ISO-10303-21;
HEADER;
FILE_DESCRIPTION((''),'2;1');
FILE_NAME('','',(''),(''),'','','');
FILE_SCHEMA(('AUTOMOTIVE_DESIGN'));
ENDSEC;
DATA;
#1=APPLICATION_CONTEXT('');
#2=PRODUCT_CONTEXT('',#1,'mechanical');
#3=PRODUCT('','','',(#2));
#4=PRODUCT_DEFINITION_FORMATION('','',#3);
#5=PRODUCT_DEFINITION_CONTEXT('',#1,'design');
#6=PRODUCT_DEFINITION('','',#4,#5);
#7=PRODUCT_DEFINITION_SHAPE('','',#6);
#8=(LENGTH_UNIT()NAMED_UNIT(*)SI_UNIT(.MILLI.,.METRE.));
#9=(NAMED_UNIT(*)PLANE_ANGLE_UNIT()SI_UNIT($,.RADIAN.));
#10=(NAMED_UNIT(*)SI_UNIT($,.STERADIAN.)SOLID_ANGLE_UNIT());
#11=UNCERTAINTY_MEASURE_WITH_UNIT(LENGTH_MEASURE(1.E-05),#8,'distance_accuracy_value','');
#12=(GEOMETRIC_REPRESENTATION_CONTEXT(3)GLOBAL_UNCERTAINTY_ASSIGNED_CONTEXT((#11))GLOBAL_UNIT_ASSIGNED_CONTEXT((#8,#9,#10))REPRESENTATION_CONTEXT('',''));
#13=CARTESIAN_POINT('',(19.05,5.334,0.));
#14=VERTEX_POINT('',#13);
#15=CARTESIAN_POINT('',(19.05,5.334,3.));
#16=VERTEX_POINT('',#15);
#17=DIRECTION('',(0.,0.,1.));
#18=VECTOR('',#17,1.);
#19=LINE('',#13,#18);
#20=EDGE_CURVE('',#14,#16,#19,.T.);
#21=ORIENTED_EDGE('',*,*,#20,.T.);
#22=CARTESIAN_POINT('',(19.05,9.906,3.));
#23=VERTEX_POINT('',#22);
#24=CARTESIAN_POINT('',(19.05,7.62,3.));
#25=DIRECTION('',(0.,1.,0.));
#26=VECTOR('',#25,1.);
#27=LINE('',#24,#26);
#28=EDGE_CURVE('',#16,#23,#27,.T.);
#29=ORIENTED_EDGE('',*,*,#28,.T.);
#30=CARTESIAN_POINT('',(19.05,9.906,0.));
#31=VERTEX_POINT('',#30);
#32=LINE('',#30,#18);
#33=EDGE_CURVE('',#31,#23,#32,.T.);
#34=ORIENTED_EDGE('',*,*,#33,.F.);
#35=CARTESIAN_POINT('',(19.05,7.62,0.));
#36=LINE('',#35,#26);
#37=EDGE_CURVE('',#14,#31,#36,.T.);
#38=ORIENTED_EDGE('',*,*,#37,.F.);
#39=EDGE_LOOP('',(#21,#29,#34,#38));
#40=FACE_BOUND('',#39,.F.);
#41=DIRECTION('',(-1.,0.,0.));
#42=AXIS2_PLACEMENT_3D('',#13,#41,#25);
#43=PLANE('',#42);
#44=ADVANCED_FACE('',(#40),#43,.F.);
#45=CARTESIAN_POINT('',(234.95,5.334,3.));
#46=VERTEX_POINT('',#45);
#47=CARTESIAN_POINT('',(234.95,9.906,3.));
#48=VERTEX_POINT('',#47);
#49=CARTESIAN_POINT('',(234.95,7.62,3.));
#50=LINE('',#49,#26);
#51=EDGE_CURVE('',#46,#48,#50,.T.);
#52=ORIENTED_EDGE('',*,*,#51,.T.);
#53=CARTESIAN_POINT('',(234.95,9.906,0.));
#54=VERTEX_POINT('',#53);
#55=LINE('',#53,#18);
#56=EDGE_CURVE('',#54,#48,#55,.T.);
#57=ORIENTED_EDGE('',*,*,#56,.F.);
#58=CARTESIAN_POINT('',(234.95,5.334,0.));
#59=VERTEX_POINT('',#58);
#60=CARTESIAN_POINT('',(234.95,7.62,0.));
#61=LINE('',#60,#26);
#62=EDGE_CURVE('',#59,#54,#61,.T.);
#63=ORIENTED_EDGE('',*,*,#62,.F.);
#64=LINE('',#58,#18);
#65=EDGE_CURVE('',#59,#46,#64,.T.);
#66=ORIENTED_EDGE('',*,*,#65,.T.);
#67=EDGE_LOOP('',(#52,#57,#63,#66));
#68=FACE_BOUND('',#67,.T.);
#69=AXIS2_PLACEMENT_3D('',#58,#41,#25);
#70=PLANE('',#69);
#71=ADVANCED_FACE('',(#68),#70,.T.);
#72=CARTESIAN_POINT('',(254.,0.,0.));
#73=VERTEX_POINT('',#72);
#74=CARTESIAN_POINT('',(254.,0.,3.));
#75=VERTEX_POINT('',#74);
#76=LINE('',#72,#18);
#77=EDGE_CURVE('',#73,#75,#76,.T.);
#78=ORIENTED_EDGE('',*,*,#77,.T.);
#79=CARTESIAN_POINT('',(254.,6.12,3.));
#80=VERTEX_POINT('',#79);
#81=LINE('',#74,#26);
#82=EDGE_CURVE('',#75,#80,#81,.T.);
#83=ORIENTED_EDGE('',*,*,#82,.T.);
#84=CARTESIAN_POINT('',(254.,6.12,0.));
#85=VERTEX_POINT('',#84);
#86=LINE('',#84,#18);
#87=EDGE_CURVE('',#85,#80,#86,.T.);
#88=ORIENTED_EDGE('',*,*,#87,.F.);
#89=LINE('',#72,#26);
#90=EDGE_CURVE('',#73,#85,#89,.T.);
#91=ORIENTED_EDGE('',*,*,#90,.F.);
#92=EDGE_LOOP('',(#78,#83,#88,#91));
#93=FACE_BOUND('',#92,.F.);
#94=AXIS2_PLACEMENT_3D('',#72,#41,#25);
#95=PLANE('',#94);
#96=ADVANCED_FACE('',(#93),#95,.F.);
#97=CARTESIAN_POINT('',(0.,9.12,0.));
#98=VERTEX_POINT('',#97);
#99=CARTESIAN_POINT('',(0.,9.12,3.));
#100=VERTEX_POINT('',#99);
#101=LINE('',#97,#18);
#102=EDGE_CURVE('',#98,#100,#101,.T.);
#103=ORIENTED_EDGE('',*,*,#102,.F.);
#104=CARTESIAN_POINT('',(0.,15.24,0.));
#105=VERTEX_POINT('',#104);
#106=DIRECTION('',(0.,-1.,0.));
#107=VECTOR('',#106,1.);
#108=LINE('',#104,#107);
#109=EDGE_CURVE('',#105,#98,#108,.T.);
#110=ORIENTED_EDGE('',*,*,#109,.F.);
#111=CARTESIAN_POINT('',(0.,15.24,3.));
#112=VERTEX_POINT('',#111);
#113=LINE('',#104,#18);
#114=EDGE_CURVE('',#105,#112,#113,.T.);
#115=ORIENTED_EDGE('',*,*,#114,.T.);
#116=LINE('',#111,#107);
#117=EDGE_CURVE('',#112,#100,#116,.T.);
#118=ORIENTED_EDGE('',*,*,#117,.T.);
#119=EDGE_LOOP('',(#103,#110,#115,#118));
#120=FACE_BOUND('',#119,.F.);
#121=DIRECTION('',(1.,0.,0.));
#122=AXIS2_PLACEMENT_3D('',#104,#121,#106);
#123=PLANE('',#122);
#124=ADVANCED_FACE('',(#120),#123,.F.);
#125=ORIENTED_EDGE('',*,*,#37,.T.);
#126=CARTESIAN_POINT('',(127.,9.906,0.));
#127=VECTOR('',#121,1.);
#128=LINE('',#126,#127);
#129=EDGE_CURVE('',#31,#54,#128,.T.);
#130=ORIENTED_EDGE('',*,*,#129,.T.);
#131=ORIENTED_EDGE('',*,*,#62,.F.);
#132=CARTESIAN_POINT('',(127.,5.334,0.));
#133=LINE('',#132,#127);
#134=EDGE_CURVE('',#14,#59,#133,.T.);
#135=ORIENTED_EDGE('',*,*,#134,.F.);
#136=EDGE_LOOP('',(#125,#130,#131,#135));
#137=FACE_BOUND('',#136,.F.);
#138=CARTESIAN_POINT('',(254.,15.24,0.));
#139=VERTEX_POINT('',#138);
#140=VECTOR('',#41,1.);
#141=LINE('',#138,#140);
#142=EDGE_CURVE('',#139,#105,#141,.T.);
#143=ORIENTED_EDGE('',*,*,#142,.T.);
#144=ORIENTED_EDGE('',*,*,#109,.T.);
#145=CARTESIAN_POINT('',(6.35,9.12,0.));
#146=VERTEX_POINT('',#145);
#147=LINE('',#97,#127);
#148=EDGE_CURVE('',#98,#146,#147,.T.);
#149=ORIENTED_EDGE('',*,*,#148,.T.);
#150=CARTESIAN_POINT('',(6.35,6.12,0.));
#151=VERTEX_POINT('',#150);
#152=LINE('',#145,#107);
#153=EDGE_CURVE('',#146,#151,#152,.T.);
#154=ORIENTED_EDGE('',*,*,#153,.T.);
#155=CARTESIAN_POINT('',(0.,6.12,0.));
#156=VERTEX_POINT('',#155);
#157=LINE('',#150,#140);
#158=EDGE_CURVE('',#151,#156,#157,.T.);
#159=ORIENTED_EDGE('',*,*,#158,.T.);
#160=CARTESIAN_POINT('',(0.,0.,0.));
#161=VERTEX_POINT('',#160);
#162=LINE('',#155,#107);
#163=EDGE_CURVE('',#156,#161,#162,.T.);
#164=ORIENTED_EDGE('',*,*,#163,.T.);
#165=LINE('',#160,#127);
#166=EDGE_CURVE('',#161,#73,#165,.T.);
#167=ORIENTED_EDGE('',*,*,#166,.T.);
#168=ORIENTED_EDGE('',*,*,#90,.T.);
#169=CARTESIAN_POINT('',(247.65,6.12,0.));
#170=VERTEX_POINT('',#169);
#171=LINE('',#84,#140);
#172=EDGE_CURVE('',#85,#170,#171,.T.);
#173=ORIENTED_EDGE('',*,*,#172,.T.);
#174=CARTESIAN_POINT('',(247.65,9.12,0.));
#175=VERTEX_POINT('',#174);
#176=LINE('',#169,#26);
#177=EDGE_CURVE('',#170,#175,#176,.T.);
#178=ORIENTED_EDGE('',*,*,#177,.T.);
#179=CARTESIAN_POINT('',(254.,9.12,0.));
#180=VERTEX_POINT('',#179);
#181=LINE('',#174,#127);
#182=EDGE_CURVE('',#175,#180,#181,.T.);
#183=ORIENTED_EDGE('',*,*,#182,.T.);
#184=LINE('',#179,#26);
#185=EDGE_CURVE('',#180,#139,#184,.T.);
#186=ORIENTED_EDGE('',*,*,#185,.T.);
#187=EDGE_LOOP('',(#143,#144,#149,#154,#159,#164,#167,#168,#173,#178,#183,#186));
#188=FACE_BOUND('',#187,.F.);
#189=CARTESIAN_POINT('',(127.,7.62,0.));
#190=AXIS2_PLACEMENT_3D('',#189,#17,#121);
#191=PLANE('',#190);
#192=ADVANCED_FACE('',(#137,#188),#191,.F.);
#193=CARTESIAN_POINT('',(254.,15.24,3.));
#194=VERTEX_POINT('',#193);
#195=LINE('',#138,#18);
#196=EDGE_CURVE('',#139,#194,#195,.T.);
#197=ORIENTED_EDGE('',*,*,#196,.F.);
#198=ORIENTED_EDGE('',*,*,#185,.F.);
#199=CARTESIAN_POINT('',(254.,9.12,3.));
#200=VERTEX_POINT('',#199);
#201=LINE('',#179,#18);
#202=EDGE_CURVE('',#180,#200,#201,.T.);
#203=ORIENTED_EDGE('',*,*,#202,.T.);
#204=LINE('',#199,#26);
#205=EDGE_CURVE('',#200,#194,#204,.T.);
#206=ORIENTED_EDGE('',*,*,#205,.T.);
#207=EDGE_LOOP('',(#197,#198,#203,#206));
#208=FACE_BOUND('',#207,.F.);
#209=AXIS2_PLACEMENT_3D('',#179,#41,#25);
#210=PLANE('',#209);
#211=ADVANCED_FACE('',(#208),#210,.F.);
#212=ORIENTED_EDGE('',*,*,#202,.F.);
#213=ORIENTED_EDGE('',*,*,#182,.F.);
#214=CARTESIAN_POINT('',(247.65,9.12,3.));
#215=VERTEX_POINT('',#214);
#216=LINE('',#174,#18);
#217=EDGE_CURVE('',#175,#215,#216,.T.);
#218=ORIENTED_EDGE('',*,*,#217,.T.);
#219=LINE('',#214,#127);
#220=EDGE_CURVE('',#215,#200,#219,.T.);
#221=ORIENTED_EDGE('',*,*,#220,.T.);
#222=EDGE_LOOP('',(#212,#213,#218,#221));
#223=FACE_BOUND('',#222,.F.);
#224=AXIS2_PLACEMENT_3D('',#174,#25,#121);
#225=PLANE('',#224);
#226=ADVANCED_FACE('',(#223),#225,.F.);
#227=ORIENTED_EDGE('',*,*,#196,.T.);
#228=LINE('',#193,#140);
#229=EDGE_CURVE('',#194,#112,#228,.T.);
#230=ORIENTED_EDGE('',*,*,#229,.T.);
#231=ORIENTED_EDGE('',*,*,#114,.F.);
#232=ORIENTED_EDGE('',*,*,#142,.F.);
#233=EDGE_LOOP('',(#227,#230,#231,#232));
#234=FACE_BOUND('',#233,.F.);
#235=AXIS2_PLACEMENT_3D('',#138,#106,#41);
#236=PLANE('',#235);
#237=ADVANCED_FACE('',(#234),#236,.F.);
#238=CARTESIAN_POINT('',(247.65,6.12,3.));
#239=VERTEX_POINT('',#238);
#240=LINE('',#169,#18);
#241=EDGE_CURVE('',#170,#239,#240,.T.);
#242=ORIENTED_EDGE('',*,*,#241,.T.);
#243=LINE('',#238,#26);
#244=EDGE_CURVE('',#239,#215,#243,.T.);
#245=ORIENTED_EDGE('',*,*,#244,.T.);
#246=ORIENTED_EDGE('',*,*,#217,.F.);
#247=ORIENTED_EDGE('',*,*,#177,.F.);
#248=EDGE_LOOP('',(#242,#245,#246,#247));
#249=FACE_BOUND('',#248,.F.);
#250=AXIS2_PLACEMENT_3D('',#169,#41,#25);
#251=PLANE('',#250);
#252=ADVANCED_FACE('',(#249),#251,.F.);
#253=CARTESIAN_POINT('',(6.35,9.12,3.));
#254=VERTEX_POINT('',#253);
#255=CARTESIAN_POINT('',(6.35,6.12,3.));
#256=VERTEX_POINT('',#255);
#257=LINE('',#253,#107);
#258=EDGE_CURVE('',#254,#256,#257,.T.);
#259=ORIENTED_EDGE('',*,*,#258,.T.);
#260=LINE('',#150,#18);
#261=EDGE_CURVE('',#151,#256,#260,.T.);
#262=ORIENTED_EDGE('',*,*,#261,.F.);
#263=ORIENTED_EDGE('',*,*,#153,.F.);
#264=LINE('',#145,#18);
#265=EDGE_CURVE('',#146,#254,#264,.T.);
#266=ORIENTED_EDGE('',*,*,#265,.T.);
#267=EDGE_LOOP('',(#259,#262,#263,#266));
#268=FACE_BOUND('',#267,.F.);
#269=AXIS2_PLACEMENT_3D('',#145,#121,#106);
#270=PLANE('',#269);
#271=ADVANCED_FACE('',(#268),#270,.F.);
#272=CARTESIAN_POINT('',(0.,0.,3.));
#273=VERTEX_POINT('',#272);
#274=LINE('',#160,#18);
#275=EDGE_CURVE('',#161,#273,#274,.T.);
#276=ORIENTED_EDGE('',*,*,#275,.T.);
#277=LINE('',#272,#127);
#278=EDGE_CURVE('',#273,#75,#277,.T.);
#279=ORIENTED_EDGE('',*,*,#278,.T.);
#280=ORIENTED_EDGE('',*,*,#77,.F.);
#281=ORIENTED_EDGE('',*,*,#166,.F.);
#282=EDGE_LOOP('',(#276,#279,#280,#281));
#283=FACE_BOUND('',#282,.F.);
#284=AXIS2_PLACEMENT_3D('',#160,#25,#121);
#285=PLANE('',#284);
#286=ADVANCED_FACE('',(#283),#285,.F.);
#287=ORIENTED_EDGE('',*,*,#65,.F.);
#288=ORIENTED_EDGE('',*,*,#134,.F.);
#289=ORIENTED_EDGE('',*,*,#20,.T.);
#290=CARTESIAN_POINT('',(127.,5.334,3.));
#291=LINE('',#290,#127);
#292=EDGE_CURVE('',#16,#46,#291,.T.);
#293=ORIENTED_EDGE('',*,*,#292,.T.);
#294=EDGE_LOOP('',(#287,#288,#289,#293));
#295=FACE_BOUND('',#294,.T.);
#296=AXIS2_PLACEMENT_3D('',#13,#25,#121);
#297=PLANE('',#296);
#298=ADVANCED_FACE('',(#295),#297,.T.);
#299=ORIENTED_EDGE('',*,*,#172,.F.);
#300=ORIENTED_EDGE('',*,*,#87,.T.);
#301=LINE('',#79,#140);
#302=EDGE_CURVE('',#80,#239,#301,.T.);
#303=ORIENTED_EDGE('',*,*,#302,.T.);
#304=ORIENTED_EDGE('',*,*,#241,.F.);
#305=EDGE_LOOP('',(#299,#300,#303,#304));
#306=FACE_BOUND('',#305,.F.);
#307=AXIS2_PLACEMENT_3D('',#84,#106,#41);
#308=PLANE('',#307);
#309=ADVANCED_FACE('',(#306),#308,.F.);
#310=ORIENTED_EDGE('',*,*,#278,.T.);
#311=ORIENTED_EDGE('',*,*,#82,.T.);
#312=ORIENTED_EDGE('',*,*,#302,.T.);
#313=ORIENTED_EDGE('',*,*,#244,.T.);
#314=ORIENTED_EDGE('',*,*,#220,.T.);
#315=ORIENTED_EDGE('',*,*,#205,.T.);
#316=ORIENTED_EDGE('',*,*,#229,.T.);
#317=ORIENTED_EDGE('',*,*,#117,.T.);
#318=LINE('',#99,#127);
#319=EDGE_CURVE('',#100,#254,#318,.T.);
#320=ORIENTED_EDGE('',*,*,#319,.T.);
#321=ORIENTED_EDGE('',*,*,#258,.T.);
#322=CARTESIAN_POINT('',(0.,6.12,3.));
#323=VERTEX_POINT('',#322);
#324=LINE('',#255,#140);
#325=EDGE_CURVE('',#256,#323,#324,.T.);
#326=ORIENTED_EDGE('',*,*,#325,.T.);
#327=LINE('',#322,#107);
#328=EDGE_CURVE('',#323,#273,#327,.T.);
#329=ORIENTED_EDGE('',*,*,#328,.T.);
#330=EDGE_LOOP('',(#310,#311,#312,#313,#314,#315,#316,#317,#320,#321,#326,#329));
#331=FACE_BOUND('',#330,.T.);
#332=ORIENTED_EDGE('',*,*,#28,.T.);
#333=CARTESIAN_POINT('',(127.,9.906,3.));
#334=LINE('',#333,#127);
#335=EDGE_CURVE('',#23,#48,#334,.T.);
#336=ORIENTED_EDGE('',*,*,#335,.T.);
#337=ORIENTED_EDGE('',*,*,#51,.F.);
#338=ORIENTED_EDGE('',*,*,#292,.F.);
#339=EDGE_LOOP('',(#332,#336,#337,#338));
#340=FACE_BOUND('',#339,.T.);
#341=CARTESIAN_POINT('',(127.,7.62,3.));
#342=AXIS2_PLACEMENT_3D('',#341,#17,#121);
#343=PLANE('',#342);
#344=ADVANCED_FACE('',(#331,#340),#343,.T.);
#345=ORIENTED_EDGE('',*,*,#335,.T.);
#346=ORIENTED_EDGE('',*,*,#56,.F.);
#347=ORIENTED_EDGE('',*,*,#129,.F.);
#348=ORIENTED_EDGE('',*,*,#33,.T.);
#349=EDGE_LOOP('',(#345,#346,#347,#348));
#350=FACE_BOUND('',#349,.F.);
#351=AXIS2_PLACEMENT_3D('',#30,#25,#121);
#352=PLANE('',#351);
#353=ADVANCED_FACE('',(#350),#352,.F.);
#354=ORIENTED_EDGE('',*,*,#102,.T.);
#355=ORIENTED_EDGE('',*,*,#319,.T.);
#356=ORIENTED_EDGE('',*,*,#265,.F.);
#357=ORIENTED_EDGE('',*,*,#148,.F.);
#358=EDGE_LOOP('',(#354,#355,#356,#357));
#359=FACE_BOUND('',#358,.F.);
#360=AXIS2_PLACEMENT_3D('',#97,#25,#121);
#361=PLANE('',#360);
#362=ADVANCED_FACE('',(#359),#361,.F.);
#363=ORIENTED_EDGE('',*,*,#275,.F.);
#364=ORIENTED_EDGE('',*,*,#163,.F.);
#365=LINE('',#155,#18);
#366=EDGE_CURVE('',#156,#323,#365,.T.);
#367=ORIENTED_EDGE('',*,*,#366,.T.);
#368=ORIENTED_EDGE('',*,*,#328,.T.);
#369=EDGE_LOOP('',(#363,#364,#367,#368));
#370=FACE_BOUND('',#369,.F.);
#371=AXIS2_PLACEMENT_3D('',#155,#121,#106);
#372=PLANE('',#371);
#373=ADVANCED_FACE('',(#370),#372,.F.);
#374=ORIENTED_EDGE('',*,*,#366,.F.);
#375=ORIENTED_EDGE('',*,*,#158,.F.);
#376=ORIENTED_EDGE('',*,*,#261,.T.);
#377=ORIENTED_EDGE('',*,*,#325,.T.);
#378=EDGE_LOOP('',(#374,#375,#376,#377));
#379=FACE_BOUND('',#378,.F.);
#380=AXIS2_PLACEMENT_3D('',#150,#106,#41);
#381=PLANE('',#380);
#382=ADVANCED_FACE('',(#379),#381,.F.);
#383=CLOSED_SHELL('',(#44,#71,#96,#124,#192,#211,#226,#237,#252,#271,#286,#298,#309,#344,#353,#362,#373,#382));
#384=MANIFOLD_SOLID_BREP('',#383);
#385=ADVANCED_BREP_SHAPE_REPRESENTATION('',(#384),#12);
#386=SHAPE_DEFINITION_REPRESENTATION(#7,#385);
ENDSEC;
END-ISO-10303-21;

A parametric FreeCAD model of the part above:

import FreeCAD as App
import Part
import Sketcher
from FreeCAD import Vector
Q = App.Units.Quantity

doc = App.newDocument("Part")
body = doc.addObject("PartDesign::Body", "Body")

sketch1 = doc.addObject("Sketcher::SketchObject", "Sketch")
body.addObject(sketch1)
sketch1.AttachmentSupport = (doc.XY_Plane, [""])
sketch1.MapMode = "FlatFace"
sketch1.addGeometry([
    Part.LineSegment(Vector(0, 6.1, 0), Vector(0, 0, 0)),
    Part.LineSegment(Vector(0, 0, 0), Vector(254, 0, 0)),
    Part.LineSegment(Vector(254, 0, 0), Vector(254, 6.1, 0)),
    Part.LineSegment(Vector(254, 6.1, 0), Vector(247.7, 6.1, 0)),
    Part.LineSegment(Vector(247.7, 6.1, 0), Vector(247.7, 9.1, 0)),
    Part.LineSegment(Vector(247.7, 9.1, 0), Vector(254, 9.1, 0)),
    Part.LineSegment(Vector(254, 9.1, 0), Vector(254, 15.2, 0)),
    Part.LineSegment(Vector(254, 15.2, 0), Vector(0, 15.2, 0)),
    Part.LineSegment(Vector(0, 15.2, 0), Vector(0, 9.1, 0)),
    Part.LineSegment(Vector(0, 9.1, 0), Vector(6.3, 9.1, 0)),
    Part.LineSegment(Vector(6.3, 9.1, 0), Vector(6.3, 6.1, 0)),
    Part.LineSegment(Vector(6.3, 6.1, 0), Vector(0, 6.1, 0)),
    Part.LineSegment(Vector(234.9, 5.3, 0), Vector(19.1, 5.3, 0)),
    Part.LineSegment(Vector(19.1, 5.3, 0), Vector(19.1, 9.9, 0)),
    Part.LineSegment(Vector(19.1, 9.9, 0), Vector(234.9, 9.9, 0)),
    Part.LineSegment(Vector(234.9, 9.9, 0), Vector(234.9, 5.3, 0)),
], False)
sketch1.addConstraint([
    Sketcher.Constraint("Coincident", 0, 2, 1, 1),
    Sketcher.Constraint("Coincident", 1, 2, 2, 1),
    Sketcher.Constraint("Coincident", 2, 2, 3, 1),
    Sketcher.Constraint("Coincident", 3, 2, 4, 1),
    Sketcher.Constraint("Coincident", 4, 2, 5, 1),
    Sketcher.Constraint("Coincident", 5, 2, 6, 1),
    Sketcher.Constraint("Coincident", 6, 2, 7, 1),
    Sketcher.Constraint("Coincident", 7, 2, 8, 1),
    Sketcher.Constraint("Coincident", 8, 2, 9, 1),
    Sketcher.Constraint("Coincident", 9, 2, 10, 1),
    Sketcher.Constraint("Coincident", 10, 2, 11, 1),
    Sketcher.Constraint("Coincident", 11, 2, 0, 1),
    Sketcher.Constraint("Coincident", 12, 2, 13, 1),
    Sketcher.Constraint("Coincident", 13, 2, 14, 1),
    Sketcher.Constraint("Coincident", 14, 2, 15, 1),
    Sketcher.Constraint("Coincident", 15, 2, 12, 1),
    Sketcher.Constraint("Vertical", 0),
    Sketcher.Constraint("Horizontal", 1),
    Sketcher.Constraint("Vertical", 2),
    Sketcher.Constraint("Horizontal", 3),
    Sketcher.Constraint("Vertical", 4),
    Sketcher.Constraint("Horizontal", 5),
    Sketcher.Constraint("Vertical", 6),
    Sketcher.Constraint("Horizontal", 7),
    Sketcher.Constraint("Vertical", 8),
    Sketcher.Constraint("Horizontal", 9),
    Sketcher.Constraint("Vertical", 10),
    Sketcher.Constraint("Horizontal", 11),
    Sketcher.Constraint("Horizontal", 12),
    Sketcher.Constraint("Vertical", 13),
    Sketcher.Constraint("Horizontal", 14),
    Sketcher.Constraint("Vertical", 15),
    Sketcher.Constraint("Coincident", 0, 2, -1, 1),
    Sketcher.Constraint("PointOnObject", 7, 2, -2),
    Sketcher.Constraint("Horizontal", 5, 2, 8, 2),
    Sketcher.Constraint("Horizontal", 3, 2, 10, 2),
    Sketcher.Constraint("Vertical", 2, 2, 5, 2),
    Sketcher.Constraint("Equal", 5, 9),
    Sketcher.Constraint("Equal", 2, 6),
    Sketcher.Constraint("DistanceX", 1, 1, 1, 2, Q("10 in")),
    Sketcher.Constraint("DistanceX", 12, 2, 12, 1, Q("8.5 in")),
    Sketcher.Constraint("DistanceX", 3, 2, 3, 1, Q("0.25 in")),
    Sketcher.Constraint("DistanceY", 13, 1, 13, 2, Q("0.18 in")),
    Sketcher.Constraint("DistanceY", -1, 1, 6, 2, Q("0.6 in")),
    Sketcher.Constraint("DistanceX", 10, 2, 12, 2, Q("0.5 in")),
    Sketcher.Constraint("DistanceY", -1, 1, 12, 2, Q("0.21 in")),
    Sketcher.Constraint("DistanceY", 0, 2, 0, 1, 6.12),
])
pad1 = doc.addObject("PartDesign::Pad", "Pad")
body.addObject(pad1)
pad1.Profile = sketch1
pad1.Length = 3

doc.recompute()
